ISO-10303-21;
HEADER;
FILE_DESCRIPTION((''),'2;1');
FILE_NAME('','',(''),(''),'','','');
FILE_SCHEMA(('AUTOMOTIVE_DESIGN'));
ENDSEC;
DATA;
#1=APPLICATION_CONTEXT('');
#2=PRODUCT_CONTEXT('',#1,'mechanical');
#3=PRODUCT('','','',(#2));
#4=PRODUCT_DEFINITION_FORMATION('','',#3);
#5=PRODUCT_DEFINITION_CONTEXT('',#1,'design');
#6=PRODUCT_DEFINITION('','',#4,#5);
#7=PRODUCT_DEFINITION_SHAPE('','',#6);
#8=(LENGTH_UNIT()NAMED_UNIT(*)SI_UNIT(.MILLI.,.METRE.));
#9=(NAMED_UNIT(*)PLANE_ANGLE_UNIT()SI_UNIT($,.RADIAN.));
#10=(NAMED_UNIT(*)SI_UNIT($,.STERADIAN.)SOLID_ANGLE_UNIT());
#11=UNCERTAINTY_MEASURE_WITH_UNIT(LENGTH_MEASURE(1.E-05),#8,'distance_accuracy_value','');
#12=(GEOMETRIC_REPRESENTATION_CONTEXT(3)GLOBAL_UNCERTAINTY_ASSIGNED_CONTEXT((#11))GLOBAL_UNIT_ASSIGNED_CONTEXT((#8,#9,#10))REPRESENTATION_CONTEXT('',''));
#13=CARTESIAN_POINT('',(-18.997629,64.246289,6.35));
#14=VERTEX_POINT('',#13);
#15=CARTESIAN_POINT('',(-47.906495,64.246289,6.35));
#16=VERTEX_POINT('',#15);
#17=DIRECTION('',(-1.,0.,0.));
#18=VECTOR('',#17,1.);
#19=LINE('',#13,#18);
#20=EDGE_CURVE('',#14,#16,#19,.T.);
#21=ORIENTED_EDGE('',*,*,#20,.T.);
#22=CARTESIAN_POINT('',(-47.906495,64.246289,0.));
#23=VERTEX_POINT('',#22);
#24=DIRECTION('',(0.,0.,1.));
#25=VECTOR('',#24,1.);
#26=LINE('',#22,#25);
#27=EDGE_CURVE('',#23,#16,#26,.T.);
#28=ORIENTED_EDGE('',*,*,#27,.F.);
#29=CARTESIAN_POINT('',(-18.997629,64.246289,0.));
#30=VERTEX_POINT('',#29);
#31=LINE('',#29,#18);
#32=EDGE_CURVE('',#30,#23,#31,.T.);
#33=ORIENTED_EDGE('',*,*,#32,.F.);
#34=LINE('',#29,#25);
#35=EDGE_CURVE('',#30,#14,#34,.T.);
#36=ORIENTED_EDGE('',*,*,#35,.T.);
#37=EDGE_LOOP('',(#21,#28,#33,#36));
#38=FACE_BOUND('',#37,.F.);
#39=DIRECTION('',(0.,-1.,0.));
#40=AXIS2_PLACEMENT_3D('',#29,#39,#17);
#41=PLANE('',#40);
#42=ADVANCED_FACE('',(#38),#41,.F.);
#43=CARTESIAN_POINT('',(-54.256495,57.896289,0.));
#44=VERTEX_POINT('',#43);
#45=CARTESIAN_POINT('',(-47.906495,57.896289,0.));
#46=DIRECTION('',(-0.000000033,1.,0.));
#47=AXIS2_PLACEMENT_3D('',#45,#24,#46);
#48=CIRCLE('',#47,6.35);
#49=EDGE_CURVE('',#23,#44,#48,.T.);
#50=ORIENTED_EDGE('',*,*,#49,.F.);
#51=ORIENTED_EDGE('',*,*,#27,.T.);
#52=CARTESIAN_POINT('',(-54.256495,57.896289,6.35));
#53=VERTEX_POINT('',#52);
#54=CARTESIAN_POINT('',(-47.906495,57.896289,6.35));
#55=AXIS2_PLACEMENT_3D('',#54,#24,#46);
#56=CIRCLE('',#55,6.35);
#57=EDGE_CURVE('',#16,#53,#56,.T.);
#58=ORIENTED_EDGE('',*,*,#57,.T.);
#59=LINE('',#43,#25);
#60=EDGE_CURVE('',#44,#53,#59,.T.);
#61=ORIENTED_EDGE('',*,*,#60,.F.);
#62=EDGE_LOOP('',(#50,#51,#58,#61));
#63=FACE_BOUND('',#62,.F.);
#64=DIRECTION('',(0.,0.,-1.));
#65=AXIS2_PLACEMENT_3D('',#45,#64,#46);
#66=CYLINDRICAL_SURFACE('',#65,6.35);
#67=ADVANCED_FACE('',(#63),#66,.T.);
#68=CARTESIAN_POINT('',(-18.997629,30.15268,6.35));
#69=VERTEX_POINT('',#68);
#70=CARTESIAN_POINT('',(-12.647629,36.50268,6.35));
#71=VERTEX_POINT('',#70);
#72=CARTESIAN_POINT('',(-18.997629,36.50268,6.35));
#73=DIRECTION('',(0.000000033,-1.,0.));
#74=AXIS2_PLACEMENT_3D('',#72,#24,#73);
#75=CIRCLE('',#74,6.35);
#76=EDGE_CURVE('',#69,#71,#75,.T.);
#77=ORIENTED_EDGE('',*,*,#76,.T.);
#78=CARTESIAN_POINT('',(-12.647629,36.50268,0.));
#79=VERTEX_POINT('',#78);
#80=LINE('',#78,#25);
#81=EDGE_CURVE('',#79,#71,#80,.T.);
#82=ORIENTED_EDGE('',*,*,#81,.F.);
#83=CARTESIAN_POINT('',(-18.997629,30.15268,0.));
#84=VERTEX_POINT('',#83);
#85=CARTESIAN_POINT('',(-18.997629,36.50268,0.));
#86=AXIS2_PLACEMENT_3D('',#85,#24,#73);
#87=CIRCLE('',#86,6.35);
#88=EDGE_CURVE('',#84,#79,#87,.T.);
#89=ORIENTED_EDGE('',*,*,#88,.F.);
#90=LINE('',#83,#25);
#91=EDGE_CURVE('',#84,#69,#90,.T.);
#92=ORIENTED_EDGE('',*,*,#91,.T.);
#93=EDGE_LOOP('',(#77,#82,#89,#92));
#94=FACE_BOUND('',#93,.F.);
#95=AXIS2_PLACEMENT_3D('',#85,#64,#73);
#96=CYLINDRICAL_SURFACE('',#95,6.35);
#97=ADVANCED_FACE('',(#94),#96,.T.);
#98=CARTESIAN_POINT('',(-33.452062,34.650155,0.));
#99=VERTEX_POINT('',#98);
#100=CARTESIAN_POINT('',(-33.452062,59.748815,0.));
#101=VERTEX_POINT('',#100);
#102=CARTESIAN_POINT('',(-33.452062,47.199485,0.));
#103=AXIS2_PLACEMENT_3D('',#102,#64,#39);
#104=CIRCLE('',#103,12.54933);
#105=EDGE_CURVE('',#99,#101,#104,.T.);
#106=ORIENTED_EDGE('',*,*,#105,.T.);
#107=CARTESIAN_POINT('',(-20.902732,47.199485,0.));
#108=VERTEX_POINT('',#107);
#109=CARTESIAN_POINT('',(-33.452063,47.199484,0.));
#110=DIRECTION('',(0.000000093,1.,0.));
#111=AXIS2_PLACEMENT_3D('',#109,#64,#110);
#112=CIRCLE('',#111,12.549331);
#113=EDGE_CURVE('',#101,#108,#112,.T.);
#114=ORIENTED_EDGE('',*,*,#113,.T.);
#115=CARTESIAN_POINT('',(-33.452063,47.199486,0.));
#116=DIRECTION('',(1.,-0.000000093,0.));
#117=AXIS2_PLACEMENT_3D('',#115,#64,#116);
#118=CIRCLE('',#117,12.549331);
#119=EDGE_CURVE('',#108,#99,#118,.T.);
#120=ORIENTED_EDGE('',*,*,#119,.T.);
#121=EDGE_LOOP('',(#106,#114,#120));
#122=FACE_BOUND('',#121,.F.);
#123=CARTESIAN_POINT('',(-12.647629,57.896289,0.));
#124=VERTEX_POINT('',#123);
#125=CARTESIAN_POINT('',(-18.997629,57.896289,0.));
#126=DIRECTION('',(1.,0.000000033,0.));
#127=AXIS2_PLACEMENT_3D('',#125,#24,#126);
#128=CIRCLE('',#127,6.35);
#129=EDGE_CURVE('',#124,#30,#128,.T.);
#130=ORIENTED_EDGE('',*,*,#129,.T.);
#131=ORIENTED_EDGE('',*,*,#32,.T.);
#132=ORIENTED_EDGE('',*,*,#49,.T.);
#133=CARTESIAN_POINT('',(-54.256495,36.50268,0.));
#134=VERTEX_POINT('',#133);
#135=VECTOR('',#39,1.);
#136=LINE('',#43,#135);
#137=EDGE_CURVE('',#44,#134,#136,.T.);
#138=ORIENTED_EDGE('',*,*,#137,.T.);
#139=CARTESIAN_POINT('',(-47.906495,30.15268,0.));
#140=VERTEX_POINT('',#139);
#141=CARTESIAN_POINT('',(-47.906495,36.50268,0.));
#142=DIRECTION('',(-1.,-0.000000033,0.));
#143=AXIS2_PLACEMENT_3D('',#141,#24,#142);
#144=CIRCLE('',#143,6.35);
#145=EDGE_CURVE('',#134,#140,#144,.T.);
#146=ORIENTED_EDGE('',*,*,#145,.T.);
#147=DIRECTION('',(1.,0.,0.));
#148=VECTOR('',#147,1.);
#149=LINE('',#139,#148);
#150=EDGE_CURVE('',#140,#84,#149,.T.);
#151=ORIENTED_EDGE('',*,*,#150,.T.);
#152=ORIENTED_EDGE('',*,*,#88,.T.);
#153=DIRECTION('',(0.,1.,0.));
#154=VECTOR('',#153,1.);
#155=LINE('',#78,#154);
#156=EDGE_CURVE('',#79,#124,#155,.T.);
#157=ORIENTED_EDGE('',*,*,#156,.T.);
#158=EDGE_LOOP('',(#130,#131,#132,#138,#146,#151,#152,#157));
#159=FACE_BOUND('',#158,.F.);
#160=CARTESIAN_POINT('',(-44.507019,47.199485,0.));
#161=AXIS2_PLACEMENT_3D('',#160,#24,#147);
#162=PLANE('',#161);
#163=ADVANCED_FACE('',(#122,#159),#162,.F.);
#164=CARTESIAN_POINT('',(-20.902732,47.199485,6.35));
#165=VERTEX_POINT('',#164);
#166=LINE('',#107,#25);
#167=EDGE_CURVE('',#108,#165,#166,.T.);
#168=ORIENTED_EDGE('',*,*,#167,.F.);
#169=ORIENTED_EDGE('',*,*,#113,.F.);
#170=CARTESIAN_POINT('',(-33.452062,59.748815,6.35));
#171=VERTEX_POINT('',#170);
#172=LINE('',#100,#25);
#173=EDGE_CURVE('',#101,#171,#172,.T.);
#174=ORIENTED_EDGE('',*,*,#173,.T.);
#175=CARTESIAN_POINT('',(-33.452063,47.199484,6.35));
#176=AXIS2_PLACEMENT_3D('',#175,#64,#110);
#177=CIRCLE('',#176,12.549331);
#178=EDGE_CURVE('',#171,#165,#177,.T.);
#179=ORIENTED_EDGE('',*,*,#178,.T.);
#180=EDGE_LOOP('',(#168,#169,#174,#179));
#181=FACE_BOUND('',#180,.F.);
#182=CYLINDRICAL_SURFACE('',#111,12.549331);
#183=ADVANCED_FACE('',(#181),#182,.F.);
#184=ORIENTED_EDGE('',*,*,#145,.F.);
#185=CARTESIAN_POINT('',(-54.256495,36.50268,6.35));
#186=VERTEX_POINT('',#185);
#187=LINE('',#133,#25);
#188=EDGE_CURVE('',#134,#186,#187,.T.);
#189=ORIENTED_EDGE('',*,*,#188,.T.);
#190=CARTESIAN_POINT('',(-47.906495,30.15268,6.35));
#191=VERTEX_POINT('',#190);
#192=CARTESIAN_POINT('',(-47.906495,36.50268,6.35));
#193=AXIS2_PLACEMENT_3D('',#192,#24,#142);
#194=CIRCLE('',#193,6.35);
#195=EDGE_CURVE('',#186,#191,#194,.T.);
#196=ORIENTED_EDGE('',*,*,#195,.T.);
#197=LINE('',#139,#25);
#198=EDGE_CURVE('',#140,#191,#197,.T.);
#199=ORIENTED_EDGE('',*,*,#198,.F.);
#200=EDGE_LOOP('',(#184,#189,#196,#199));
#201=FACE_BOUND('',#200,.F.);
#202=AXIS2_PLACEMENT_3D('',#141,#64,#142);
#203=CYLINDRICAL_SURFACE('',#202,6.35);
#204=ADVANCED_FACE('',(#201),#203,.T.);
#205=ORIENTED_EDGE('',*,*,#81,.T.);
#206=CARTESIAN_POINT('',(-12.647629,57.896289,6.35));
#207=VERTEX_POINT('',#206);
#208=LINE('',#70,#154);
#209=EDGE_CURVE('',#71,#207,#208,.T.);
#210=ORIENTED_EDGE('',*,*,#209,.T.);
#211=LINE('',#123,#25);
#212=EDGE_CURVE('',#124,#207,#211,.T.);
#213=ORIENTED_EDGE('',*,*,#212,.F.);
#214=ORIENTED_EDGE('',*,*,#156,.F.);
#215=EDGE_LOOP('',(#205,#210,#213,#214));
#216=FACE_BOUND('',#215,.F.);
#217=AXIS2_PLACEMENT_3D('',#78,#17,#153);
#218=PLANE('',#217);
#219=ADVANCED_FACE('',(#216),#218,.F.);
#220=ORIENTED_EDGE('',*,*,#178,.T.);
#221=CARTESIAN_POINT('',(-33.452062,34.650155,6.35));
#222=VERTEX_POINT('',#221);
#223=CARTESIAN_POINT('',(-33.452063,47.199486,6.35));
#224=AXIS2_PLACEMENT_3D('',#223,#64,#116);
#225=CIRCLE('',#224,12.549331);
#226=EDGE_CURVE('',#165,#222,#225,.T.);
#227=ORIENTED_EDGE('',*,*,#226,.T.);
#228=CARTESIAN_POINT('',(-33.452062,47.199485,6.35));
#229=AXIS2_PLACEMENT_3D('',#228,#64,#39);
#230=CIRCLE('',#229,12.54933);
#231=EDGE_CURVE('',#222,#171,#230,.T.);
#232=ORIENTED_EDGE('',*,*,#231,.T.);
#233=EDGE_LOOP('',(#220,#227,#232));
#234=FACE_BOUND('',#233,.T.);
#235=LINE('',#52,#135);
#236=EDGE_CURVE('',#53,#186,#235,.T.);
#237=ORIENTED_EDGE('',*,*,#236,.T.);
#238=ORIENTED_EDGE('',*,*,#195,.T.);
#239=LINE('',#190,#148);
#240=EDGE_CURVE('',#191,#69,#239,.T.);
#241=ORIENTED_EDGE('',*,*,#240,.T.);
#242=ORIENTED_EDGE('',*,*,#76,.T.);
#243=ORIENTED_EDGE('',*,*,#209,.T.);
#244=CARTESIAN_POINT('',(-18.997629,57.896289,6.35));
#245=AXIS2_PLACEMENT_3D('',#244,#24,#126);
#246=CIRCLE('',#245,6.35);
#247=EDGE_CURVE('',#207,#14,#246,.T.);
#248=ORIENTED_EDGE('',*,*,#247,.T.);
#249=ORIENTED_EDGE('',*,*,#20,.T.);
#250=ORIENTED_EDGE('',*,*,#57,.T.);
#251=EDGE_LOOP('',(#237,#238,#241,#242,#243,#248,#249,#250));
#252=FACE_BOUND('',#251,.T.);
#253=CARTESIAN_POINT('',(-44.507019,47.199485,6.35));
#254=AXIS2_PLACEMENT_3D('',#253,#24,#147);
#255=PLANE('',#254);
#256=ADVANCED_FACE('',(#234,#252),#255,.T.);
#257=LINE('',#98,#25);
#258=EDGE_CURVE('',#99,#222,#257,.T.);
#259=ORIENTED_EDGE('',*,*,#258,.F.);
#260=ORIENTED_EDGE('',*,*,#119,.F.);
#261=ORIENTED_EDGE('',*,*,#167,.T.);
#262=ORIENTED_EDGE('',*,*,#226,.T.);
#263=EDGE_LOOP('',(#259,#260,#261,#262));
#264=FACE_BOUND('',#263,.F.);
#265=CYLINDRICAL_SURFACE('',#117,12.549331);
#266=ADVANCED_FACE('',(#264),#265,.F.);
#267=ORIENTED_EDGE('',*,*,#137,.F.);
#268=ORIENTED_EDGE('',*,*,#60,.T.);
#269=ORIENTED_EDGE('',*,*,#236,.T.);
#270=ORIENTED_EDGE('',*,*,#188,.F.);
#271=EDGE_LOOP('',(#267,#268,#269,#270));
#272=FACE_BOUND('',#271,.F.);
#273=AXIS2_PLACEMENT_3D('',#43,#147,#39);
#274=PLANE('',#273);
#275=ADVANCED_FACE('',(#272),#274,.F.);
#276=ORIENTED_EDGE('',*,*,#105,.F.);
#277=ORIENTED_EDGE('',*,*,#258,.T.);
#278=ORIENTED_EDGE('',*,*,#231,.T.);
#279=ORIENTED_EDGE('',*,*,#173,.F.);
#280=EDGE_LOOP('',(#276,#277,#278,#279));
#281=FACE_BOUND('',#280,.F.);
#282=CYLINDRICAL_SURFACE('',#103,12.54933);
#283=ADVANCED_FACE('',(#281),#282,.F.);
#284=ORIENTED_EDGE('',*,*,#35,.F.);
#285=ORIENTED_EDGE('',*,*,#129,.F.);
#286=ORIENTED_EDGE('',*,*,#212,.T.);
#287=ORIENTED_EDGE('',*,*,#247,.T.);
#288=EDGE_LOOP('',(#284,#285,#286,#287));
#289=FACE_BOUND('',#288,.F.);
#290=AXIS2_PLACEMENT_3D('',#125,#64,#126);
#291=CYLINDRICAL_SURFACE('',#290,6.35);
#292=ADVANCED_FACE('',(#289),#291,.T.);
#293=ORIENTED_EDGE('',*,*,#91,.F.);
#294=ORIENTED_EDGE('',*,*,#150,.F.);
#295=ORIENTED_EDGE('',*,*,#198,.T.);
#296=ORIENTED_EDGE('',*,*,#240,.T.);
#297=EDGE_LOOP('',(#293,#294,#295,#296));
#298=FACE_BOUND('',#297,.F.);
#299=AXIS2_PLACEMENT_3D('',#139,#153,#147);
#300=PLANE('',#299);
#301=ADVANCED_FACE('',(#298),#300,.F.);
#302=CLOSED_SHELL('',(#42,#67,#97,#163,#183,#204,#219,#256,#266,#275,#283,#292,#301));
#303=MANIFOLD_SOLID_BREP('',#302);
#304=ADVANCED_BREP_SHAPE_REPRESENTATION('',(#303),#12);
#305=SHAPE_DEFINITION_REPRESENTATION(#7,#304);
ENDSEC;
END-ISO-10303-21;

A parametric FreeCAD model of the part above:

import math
import FreeCAD as App
import Part
import Sketcher
Q = App.Units.Quantity

doc = App.newDocument("Part")
params = doc.addObject("Spreadsheet::Sheet", "Params")
for row, (alias, value) in enumerate([
    ("sketch1_radius", "0.25 in"),
    ("pad1_length", "0.25 in"),
], start=1):
    params.set(f"A{row}", alias)
    params.set(f"B{row}", "=" + value)
    params.setAlias(f"B{row}", alias)

body = doc.addObject("PartDesign::Body", "Body")

# Sketch on XY plane
sketch1 = doc.addObject("Sketcher::SketchObject", "Sketch")
body.addObject(sketch1)
sketch1.AttachmentSupport = (doc.XY_Plane, [""])
sketch1.MapMode = "FlatFace"
sketch1.addGeometry(Part.ArcOfCircle(Part.Circle(App.Vector(-47.906495, 57.896289, 0), App.Vector(0, 0, 1), 6.35), math.radians(90.000002), math.radians(179.999998)), False)
sketch1.addGeometry(Part.LineSegment(App.Vector(-54.256495, 57.896289, 0), App.Vector(-54.256495, 36.50268, 0)), False)
sketch1.addGeometry(Part.ArcOfCircle(Part.Circle(App.Vector(-47.906495, 36.50268, 0), App.Vector(0, 0, 1), 6.35), math.radians(-179.999998), math.radians(-90.000002)), False)
sketch1.addGeometry(Part.LineSegment(App.Vector(-47.906495, 30.15268, 0), App.Vector(-18.997629, 30.15268, 0)), False)
sketch1.addGeometry(Part.ArcOfCircle(Part.Circle(App.Vector(-18.997629, 36.50268, 0), App.Vector(0, 0, 1), 6.35), math.radians(-89.999998), math.radians(-0.000002)), False)
sketch1.addGeometry(Part.LineSegment(App.Vector(-12.647629, 36.50268, 0), App.Vector(-12.647629, 57.896289, 0)), False)
sketch1.addGeometry(Part.ArcOfCircle(Part.Circle(App.Vector(-18.997629, 57.896289, 0), App.Vector(0, 0, 1), 6.35), math.radians(0.000002), math.radians(89.999998)), False)
sketch1.addGeometry(Part.LineSegment(App.Vector(-18.997629, 64.246289, 0), App.Vector(-47.906495, 64.246289, 0)), False)
sketch1.addGeometry(Part.ArcOfCircle(Part.Circle(App.Vector(-33.452062, 47.199485, 0), App.Vector(0, 0, 1), 12.54933), math.radians(90), math.radians(270)), False)
sketch1.addGeometry(Part.ArcOfCircle(Part.Circle(App.Vector(-33.452063, 47.199484, 0), App.Vector(0, 0, 1), 12.549331), math.radians(0.000005), math.radians(89.999995)), False)
sketch1.addGeometry(Part.ArcOfCircle(Part.Circle(App.Vector(-33.452063, 47.199486, 0), App.Vector(0, 0, 1), 12.549331), math.radians(-89.999995), math.radians(-0.000005)), False)
sketch1.addConstraint(Sketcher.Constraint("Tangent", 0, 2, 1, 1))
sketch1.addConstraint(Sketcher.Constraint("Tangent", 1, 2, 2, 1))
sketch1.addConstraint(Sketcher.Constraint("Tangent", 2, 2, 3, 1))
sketch1.addConstraint(Sketcher.Constraint("Tangent", 3, 2, 4, 1))
sketch1.addConstraint(Sketcher.Constraint("Tangent", 4, 2, 5, 1))
sketch1.addConstraint(Sketcher.Constraint("Tangent", 5, 2, 6, 1))
sketch1.addConstraint(Sketcher.Constraint("Tangent", 6, 2, 7, 1))
sketch1.addConstraint(Sketcher.Constraint("Tangent", 7, 2, 0, 1))
sketch1.addConstraint(Sketcher.Constraint("Tangent", 8, 1, 9, 2))
sketch1.addConstraint(Sketcher.Constraint("Tangent", 9, 1, 10, 2))
sketch1.addConstraint(Sketcher.Constraint("Tangent", 10, 1, 8, 2))
sketch1.addConstraint(Sketcher.Constraint("Vertical", 1))
sketch1.addConstraint(Sketcher.Constraint("Horizontal", 3))
sketch1.addConstraint(Sketcher.Constraint("Vertical", 5))
sketch1.addConstraint(Sketcher.Constraint("Horizontal", 7))
sketch1.addConstraint(Sketcher.Constraint("Equal", 0, 2))
sketch1.addConstraint(Sketcher.Constraint("Equal", 2, 4))
sketch1.addConstraint(Sketcher.Constraint("Equal", 4, 6))
sketch1.addConstraint(Sketcher.Constraint("Horizontal", 10, 3, 9, 1))
sketch1.addConstraint(Sketcher.Constraint("Vertical", 10, 3, 8, 1))
sketch1.addConstraint(Sketcher.Constraint("Vertical", 8, 1, 10, 1))
sketch1.addConstraint(Sketcher.Constraint("Radius", 0, Q("0.25 in")))
sketch1.addConstraint(Sketcher.Constraint("Radius", 8, Q("12.54933 mm")))
sketch1.addConstraint(Sketcher.Constraint("DistanceY", 1, 2, 1, 1, Q("21.393609 mm")))
sketch1.addConstraint(Sketcher.Constraint("DistanceX", 3, 1, 3, 2, Q("28.908866 mm")))
sketch1.addConstraint(Sketcher.Constraint("DistanceY", -1, 1, 0, 3, Q("57.896289 mm")))
sketch1.addConstraint(Sketcher.Constraint("DistanceX", 4, 3, -1, 1, Q("18.997629 mm")))
sketch1.addConstraint(Sketcher.Constraint("DistanceX", 8, 3, -1, 1, Q("33.452062 mm")))
sketch1.addConstraint(Sketcher.Constraint("DistanceY", -1, 1, 8, 3, Q("47.199485 mm")))
sketch1.setExpression("Constraints[21]", "Params.sketch1_radius")
pad1 = doc.addObject("PartDesign::Pad", "Pad")
body.addObject(pad1)
pad1.Profile = sketch1
pad1.setExpression("Length", "Params.pad1_length")

doc.recompute()
